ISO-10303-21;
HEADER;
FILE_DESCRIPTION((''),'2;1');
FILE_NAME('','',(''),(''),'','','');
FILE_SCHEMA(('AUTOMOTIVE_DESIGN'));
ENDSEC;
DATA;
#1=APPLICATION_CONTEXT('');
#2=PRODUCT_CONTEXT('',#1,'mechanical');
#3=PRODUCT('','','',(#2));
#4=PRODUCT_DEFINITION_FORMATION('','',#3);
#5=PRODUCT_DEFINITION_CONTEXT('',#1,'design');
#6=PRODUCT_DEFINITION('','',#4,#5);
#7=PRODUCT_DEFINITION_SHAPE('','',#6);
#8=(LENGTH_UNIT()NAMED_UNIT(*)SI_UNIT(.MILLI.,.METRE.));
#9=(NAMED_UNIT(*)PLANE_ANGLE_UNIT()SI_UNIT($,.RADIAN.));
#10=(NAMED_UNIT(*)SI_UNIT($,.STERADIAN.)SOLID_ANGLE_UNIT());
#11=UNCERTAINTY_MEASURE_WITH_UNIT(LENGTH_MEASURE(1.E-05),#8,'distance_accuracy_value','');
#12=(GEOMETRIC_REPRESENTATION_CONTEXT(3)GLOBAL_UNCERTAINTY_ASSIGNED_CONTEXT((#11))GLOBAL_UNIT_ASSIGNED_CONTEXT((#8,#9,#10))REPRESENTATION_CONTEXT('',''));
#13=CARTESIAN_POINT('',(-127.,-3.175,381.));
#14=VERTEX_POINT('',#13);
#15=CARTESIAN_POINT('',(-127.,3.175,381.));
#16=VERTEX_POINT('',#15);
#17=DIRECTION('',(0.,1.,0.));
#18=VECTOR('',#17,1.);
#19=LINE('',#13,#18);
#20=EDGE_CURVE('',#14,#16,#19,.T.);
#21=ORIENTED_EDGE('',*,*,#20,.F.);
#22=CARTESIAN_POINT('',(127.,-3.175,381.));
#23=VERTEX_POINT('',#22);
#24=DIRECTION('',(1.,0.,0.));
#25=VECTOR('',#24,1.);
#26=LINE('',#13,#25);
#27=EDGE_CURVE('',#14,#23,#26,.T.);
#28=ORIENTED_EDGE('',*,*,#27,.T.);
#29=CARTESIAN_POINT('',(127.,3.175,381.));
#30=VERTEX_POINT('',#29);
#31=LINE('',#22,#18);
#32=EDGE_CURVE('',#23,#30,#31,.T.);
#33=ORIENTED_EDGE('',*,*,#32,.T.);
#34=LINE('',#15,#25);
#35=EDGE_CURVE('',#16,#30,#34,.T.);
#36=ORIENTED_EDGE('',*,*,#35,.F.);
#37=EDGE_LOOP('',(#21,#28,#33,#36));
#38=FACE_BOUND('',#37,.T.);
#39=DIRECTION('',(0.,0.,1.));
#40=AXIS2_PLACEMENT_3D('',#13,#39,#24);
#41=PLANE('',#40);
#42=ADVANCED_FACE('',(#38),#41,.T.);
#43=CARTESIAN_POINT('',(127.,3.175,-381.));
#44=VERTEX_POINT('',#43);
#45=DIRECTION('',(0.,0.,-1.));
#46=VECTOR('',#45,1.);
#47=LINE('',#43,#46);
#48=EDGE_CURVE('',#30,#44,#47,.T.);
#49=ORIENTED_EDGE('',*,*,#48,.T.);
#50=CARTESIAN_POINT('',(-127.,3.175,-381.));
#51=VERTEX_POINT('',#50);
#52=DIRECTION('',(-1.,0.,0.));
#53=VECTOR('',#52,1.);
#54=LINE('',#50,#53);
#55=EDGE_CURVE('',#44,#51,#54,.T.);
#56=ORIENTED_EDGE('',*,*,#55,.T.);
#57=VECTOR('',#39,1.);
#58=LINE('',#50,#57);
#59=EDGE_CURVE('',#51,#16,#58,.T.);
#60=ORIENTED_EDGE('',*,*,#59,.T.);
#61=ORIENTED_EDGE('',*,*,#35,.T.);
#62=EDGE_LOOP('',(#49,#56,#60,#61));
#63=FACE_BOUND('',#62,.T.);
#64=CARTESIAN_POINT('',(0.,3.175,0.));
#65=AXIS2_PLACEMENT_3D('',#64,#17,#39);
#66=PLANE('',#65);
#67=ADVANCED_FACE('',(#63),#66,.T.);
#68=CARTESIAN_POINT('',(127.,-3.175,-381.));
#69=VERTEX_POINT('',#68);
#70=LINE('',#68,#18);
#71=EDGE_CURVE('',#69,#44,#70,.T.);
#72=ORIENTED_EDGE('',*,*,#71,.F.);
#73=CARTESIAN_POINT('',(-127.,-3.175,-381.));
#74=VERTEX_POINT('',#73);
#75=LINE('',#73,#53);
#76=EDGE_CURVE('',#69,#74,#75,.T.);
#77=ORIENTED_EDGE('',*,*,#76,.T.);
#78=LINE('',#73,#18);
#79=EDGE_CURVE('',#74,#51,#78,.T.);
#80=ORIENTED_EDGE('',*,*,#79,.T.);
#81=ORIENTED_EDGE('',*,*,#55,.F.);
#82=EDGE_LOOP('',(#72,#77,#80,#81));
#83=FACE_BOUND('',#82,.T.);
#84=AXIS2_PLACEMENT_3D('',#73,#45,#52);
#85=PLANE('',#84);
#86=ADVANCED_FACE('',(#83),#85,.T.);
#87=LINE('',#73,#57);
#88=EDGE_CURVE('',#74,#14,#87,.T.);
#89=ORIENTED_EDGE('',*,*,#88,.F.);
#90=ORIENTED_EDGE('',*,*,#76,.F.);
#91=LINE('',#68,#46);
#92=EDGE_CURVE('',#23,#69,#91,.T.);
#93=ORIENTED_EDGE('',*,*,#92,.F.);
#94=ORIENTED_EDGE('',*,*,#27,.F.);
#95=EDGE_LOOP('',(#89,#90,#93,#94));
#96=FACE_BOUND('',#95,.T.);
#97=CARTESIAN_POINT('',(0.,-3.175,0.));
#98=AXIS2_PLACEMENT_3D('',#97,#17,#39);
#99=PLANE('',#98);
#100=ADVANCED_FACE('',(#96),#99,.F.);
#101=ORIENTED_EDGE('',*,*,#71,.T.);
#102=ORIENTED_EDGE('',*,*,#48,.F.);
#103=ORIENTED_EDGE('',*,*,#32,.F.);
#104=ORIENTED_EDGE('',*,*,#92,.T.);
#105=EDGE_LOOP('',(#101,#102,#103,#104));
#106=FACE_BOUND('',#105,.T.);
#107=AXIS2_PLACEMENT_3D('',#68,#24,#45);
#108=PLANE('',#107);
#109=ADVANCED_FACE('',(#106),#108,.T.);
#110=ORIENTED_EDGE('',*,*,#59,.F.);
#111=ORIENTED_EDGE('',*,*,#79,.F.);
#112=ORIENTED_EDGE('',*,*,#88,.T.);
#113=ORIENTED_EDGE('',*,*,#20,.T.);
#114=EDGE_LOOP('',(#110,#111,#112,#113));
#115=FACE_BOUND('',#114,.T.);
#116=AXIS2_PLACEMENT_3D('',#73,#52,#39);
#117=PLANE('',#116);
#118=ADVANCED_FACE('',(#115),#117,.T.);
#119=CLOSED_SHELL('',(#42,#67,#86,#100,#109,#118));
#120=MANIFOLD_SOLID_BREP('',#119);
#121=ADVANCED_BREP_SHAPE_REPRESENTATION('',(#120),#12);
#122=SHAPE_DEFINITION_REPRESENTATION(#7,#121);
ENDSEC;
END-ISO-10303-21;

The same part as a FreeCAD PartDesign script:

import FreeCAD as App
import Part
import Sketcher

V = App.Vector
Q = App.Units.Quantity

doc = App.newDocument("Part")
body = doc.addObject("PartDesign::Body", "Body")

sketch1 = body.newObject("Sketcher::SketchObject", "Sketch")
sketch1.AttachmentSupport = (doc.getObject("XZ_Plane"), [""])
sketch1.MapMode = "FlatFace"
sketch1.addGeometry([
    Part.LineSegment(V(-127, -381, 0), V(-127, 381, 0)),
    Part.LineSegment(V(-127, 381, 0), V(127, 381, 0)),
    Part.LineSegment(V(127, 381, 0), V(127, -381, 0)),
    Part.LineSegment(V(127, -381, 0), V(-127, -381, 0)),
], False)
sketch1.addConstraint([
    Sketcher.Constraint("Coincident", 0, 2, 1, 1),
    Sketcher.Constraint("Coincident", 1, 2, 2, 1),
    Sketcher.Constraint("Coincident", 2, 2, 3, 1),
    Sketcher.Constraint("Coincident", 3, 2, 0, 1),
    Sketcher.Constraint("Vertical", 0),
    Sketcher.Constraint("Horizontal", 1),
    Sketcher.Constraint("Vertical", 2),
    Sketcher.Constraint("Horizontal", 3),
    Sketcher.Constraint("Symmetric", 0, 2, 2, 2, -1, 1),
    Sketcher.Constraint("DistanceX", 1, 1, 1, 2, Q("10 in")),
    Sketcher.Constraint("DistanceY", 0, 1, 0, 2, Q("30 in")),
])
pad1 = body.newObject("PartDesign::Pad", "Pad")
pad1.Profile = sketch1
pad1.Type = "TwoLengths"
pad1.Length = Q("0.125 in")
pad1.Length2 = Q("0.125 in")
pad1.Reversed = True

doc.recompute()
